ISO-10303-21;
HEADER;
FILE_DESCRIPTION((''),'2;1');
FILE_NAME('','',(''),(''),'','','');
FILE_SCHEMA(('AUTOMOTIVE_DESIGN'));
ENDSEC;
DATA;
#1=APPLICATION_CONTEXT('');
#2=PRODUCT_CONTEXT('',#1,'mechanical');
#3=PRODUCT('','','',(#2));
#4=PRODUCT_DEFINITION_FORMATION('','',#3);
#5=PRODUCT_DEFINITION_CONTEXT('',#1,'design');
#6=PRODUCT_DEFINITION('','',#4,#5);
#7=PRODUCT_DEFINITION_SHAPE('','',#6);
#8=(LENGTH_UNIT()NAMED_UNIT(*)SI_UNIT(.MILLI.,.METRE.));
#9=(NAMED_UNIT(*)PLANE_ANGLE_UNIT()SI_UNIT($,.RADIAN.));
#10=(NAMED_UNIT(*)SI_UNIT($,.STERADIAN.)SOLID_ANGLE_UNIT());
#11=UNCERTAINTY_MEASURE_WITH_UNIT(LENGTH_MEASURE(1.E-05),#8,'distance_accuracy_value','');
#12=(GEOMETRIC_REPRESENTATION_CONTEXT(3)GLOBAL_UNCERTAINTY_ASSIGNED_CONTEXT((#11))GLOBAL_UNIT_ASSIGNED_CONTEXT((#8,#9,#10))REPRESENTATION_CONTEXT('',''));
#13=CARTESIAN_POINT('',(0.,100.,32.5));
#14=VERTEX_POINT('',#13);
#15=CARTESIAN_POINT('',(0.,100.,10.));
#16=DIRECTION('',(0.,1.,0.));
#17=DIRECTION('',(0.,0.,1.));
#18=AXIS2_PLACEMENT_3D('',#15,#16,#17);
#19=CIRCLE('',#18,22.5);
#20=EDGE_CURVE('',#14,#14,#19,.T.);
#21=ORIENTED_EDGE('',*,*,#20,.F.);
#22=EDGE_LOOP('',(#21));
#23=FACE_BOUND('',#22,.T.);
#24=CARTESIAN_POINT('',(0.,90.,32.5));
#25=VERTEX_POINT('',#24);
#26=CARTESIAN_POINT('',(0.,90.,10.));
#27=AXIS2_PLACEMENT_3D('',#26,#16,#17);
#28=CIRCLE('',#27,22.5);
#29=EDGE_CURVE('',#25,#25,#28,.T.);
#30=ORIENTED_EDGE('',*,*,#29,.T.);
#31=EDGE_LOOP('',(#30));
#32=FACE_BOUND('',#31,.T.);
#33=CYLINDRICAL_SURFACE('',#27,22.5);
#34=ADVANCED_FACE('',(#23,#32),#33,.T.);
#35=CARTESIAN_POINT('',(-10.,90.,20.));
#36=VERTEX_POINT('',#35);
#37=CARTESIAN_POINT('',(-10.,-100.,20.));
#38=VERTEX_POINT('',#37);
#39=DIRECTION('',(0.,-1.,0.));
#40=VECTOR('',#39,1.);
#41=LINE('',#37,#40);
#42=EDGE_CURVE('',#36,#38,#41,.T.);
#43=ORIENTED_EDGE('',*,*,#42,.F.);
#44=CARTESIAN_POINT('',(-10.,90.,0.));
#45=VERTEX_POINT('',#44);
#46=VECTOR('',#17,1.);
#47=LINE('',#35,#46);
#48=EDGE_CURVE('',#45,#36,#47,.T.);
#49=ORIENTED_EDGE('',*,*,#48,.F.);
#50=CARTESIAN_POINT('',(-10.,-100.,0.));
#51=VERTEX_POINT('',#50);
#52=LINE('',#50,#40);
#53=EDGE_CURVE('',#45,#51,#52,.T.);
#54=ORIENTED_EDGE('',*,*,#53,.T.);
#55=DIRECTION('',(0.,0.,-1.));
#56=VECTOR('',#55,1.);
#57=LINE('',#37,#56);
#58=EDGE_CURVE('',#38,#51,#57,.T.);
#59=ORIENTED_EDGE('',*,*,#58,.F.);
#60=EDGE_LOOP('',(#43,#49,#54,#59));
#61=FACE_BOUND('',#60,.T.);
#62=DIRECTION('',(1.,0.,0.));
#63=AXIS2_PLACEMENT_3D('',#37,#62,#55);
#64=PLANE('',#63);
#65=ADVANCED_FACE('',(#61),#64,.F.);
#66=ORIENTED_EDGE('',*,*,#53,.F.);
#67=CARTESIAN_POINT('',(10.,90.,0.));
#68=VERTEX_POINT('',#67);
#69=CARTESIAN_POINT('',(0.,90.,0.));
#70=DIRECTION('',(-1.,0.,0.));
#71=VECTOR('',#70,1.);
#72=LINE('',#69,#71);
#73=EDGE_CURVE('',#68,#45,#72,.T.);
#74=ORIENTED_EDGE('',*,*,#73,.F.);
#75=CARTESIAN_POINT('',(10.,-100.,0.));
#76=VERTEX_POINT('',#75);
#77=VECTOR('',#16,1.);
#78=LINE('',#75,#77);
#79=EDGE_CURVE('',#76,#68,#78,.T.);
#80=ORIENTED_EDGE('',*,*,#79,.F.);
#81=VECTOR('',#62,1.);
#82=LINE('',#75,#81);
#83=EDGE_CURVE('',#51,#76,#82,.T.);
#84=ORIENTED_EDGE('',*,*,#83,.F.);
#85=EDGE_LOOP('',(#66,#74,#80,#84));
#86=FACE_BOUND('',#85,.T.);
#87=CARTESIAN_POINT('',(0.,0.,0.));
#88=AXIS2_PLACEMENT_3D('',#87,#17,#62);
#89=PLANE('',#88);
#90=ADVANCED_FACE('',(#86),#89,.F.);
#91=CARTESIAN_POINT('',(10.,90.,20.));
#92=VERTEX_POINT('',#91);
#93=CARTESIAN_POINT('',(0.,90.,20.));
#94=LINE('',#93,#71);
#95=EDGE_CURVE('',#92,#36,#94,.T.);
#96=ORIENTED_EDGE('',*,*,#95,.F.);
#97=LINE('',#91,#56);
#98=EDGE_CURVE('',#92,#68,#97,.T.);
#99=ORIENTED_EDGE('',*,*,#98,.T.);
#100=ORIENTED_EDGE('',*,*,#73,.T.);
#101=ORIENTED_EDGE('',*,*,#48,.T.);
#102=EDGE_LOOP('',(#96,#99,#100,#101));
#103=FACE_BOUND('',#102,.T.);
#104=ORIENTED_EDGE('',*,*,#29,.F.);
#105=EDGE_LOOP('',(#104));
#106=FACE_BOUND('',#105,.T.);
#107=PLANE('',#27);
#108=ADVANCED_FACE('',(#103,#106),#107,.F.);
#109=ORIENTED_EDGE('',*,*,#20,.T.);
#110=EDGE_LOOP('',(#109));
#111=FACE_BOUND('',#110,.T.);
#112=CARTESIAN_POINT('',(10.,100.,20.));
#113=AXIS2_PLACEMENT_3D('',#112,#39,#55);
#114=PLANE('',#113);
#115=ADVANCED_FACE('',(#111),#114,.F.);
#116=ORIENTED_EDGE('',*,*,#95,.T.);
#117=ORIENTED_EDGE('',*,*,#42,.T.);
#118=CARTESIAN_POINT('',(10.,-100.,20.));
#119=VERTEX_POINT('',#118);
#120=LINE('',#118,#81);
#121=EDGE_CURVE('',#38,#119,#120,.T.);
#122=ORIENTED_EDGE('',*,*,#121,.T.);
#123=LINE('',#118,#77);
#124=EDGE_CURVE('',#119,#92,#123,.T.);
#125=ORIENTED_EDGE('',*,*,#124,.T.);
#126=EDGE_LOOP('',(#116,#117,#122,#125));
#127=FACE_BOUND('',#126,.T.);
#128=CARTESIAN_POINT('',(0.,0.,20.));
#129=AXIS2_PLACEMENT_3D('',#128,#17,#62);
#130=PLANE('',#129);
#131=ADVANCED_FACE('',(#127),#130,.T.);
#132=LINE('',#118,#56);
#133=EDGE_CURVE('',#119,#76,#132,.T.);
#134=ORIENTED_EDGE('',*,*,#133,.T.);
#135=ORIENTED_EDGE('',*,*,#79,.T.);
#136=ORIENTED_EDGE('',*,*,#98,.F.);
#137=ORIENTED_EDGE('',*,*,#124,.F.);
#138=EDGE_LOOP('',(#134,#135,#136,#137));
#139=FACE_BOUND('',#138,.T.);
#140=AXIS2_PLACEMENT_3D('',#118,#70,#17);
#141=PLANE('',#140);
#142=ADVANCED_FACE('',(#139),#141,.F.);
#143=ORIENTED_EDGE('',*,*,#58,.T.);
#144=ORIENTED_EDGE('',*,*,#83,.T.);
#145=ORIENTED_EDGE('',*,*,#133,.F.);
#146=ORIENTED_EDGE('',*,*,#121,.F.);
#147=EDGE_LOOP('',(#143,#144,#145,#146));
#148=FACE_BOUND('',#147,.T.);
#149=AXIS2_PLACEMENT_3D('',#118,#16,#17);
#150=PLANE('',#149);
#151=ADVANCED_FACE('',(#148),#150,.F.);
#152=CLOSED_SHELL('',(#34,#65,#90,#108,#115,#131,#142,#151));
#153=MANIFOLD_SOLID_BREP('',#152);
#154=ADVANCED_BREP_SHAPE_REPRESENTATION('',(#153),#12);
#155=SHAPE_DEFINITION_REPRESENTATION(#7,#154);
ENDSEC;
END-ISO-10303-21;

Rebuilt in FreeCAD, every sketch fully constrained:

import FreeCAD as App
import Part
import Sketcher

doc = App.newDocument("Part")
body = doc.addObject("PartDesign::Body", "Body")

# Sketch on XY plane
sketch1 = body.newObject("Sketcher::SketchObject", "Sketch")
sketch1.AttachmentSupport = (doc.getObject("XY_Plane"), [""])
sketch1.MapMode = "FlatFace"
sketch1.addGeometry(Part.LineSegment(App.Vector(-10, 100, 0), App.Vector(-10, -100, 0)), False)
sketch1.addGeometry(Part.LineSegment(App.Vector(-10, -100, 0), App.Vector(10, -100, 0)), False)
sketch1.addGeometry(Part.LineSegment(App.Vector(10, -100, 0), App.Vector(10, 100, 0)), False)
sketch1.addGeometry(Part.LineSegment(App.Vector(10, 100, 0), App.Vector(-10, 100, 0)), False)
sketch1.addConstraint(Sketcher.Constraint("Coincident", 0, 2, 1, 1))
sketch1.addConstraint(Sketcher.Constraint("Coincident", 1, 2, 2, 1))
sketch1.addConstraint(Sketcher.Constraint("Coincident", 2, 2, 3, 1))
sketch1.addConstraint(Sketcher.Constraint("Coincident", 3, 2, 0, 1))
sketch1.addConstraint(Sketcher.Constraint("Vertical", 0))
sketch1.addConstraint(Sketcher.Constraint("Horizontal", 1))
sketch1.addConstraint(Sketcher.Constraint("Vertical", 2))
sketch1.addConstraint(Sketcher.Constraint("Horizontal", 3))
sketch1.addConstraint(Sketcher.Constraint("Symmetric", 0, 2, 2, 2, -1, 1))
sketch1.addConstraint(Sketcher.Constraint("DistanceX", 1, 1, 1, 2, 20.0))
sketch1.addConstraint(Sketcher.Constraint("DistanceY", 0, 2, 0, 1, 200.0))
pad1 = body.newObject("PartDesign::Pad", "Pad")
pad1.Profile = sketch1
pad1.Length = 20

# Sketch on XZ plane
sketch2 = body.newObject("Sketcher::SketchObject", "Sketch001")
sketch2.AttachmentSupport = (doc.getObject("XZ_Plane"), [""])
sketch2.MapMode = "FlatFace"
sketch2.AttachmentOffset = App.Placement(App.Vector(0, 0, -100), App.Rotation())
sketch2.addGeometry(Part.Circle(App.Vector(0, 10, 0), App.Vector(0, 0, 1), 22.5), False)
sketch2.addConstraint(Sketcher.Constraint("PointOnObject", 0, 3, -2))
sketch2.addConstraint(Sketcher.Constraint("Diameter", 0, 45.0))
sketch2.addConstraint(Sketcher.Constraint("DistanceY", -1, 1, 0, 3, 10.0))
pad2 = body.newObject("PartDesign::Pad", "Pad001")
pad2.Profile = sketch2
pad2.Length = 10

doc.recompute()
